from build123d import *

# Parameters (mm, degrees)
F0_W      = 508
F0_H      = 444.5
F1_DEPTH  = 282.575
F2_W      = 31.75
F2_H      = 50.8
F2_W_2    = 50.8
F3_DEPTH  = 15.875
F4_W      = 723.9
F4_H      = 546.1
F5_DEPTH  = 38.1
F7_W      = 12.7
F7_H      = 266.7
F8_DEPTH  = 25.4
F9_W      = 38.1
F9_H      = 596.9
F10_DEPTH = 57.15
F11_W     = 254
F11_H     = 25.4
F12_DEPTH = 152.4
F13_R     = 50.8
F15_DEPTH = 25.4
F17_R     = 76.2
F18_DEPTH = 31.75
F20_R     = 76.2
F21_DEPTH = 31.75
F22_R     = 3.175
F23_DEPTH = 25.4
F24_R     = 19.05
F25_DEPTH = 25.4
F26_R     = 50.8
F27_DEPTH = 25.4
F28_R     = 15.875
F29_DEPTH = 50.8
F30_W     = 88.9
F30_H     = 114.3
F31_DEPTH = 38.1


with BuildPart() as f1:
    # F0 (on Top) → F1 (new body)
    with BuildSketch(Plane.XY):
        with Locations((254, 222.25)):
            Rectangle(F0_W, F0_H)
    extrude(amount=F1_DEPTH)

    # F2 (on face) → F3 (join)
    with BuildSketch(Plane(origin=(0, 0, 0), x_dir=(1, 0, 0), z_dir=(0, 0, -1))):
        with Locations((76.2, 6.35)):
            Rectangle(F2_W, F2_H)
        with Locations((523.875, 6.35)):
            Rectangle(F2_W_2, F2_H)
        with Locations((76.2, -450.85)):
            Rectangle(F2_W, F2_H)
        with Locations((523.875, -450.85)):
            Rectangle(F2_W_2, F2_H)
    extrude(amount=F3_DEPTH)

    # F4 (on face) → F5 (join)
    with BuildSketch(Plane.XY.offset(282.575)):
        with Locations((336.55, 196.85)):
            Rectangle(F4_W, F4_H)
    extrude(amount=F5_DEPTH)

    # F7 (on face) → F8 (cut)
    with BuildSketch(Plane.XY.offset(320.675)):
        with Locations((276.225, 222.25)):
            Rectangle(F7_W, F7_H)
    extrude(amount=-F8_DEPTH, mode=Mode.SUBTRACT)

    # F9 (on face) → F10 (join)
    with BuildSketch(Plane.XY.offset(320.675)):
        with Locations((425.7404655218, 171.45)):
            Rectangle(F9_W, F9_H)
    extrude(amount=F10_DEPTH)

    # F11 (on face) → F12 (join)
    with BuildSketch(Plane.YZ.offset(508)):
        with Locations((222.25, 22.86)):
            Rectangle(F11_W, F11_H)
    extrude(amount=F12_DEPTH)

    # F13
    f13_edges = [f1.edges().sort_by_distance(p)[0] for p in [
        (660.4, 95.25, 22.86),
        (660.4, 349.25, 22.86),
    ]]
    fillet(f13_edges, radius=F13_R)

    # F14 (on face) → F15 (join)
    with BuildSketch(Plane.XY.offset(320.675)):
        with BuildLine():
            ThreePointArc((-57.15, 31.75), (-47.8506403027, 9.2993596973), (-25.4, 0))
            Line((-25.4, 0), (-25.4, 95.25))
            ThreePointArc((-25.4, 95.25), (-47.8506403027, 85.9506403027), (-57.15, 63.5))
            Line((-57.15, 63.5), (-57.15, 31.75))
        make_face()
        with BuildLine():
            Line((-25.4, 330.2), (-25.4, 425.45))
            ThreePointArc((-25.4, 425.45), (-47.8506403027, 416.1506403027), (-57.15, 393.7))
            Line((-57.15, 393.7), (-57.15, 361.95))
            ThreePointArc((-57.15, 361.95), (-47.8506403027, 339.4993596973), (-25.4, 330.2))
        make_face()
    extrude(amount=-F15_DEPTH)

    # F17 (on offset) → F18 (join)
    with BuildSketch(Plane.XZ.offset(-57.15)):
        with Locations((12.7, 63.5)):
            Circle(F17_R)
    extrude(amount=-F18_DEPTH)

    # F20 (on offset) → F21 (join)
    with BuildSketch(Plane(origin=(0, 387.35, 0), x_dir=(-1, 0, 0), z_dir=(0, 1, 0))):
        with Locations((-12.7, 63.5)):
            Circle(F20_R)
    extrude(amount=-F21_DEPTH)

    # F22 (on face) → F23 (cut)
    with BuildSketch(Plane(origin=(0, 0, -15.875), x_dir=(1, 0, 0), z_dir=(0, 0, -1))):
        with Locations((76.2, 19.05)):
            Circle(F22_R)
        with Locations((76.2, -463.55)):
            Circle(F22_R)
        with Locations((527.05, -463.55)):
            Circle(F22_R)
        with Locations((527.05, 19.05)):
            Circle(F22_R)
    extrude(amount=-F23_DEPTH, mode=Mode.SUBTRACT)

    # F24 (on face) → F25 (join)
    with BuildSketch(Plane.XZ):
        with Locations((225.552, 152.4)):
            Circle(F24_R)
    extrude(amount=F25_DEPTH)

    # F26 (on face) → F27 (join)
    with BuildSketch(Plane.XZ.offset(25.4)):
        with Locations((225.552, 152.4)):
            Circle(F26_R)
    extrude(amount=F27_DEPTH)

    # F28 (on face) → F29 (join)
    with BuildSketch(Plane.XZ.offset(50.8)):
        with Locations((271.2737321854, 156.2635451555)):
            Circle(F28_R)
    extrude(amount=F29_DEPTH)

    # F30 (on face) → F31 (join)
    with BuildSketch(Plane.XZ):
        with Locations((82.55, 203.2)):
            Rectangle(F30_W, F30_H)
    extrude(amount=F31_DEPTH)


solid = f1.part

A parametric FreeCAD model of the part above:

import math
import FreeCAD as App
import Part
import Sketcher
Q = App.Units.Quantity


def edges_at(feature, points):
    """Names of the edges that pass closest to the given points."""
    edges = feature.Shape.Edges
    near = lambda p: min(range(len(edges)), key=lambda i: edges[i].distToShape(Part.Vertex(*p))[0])
    return sorted({f"Edge{near(p) + 1}" for p in points})

doc = App.newDocument("Part")
body = doc.addObject("PartDesign::Body", "Body")

# Sketch on XY plane
sketch1 = body.newObject("Sketcher::SketchObject", "Sketch")
sketch1.AttachmentSupport = (doc.getObject("XY_Plane"), [""])
sketch1.MapMode = "FlatFace"
sketch1.addGeometry(Part.LineSegment(App.Vector(0, 444, 0), App.Vector(0, 0, 0)), False)
sketch1.addGeometry(Part.LineSegment(App.Vector(0, 0, 0), App.Vector(508, 0, 0)), False)
sketch1.addGeometry(Part.LineSegment(App.Vector(508, 0, 0), App.Vector(508, 444, 0)), False)
sketch1.addGeometry(Part.LineSegment(App.Vector(508, 444, 0), App.Vector(0, 444, 0)), False)
sketch1.addConstraint(Sketcher.Constraint("Coincident", 0, 2, 1, 1))
sketch1.addConstraint(Sketcher.Constraint("Coincident", 1, 2, 2, 1))
sketch1.addConstraint(Sketcher.Constraint("Coincident", 2, 2, 3, 1))
sketch1.addConstraint(Sketcher.Constraint("Coincident", 3, 2, 0, 1))
sketch1.addConstraint(Sketcher.Constraint("Vertical", 0))
sketch1.addConstraint(Sketcher.Constraint("Horizontal", 1))
sketch1.addConstraint(Sketcher.Constraint("Vertical", 2))
sketch1.addConstraint(Sketcher.Constraint("Horizontal", 3))
sketch1.addConstraint(Sketcher.Constraint("Coincident", 0, 2, -1, 1))
sketch1.addConstraint(Sketcher.Constraint("DistanceX", 1, 1, 1, 2, Q("20 in")))
sketch1.addConstraint(Sketcher.Constraint("DistanceY", 0, 2, 0, 1, Q("17.5 in")))
pad1 = body.newObject("PartDesign::Pad", "Pad")
pad1.Profile = sketch1
pad1.Length = Q("11.125 in")

# Sketch on XY plane
sketch2 = body.newObject("Sketcher::SketchObject", "Sketch001")
sketch2.AttachmentSupport = (doc.getObject("XY_Plane"), [""])
sketch2.MapMode = "FlatFace"
sketch2.addGeometry(Part.LineSegment(App.Vector(60, -32, 0), App.Vector(60, 19, 0)), False)
sketch2.addGeometry(Part.LineSegment(App.Vector(60, 19, 0), App.Vector(92, 19, 0)), False)
sketch2.addGeometry(Part.LineSegment(App.Vector(92, 19, 0), App.Vector(92, -32, 0)), False)
sketch2.addGeometry(Part.LineSegment(App.Vector(92, -32, 0), App.Vector(60, -32, 0)), False)
sketch2.addGeometry(Part.LineSegment(App.Vector(498, -32, 0), App.Vector(498, 19, 0)), False)
sketch2.addGeometry(Part.LineSegment(App.Vector(498, 19, 0), App.Vector(549, 19, 0)), False)
sketch2.addGeometry(Part.LineSegment(App.Vector(549, 19, 0), App.Vector(549, -32, 0)), False)
sketch2.addGeometry(Part.LineSegment(App.Vector(549, -32, 0), App.Vector(498, -32, 0)), False)
sketch2.addGeometry(Part.LineSegment(App.Vector(60, 425, 0), App.Vector(60, 476, 0)), False)
sketch2.addGeometry(Part.LineSegment(App.Vector(60, 476, 0), App.Vector(92, 476, 0)), False)
sketch2.addGeometry(Part.LineSegment(App.Vector(92, 476, 0), App.Vector(92, 425, 0)), False)
sketch2.addGeometry(Part.LineSegment(App.Vector(92, 425, 0), App.Vector(60, 425, 0)), False)
sketch2.addGeometry(Part.LineSegment(App.Vector(498, 425, 0), App.Vector(498, 476, 0)), False)
sketch2.addGeometry(Part.LineSegment(App.Vector(498, 476, 0), App.Vector(549, 476, 0)), False)
sketch2.addGeometry(Part.LineSegment(App.Vector(549, 476, 0), App.Vector(549, 425, 0)), False)
sketch2.addGeometry(Part.LineSegment(App.Vector(549, 425, 0), App.Vector(498, 425, 0)), False)
sketch2.addConstraint(Sketcher.Constraint("Coincident", 0, 2, 1, 1))
sketch2.addConstraint(Sketcher.Constraint("Coincident", 1, 2, 2, 1))
sketch2.addConstraint(Sketcher.Constraint("Coincident", 2, 2, 3, 1))
sketch2.addConstraint(Sketcher.Constraint("Coincident", 3, 2, 0, 1))
sketch2.addConstraint(Sketcher.Constraint("Coincident", 4, 2, 5, 1))
sketch2.addConstraint(Sketcher.Constraint("Coincident", 5, 2, 6, 1))
sketch2.addConstraint(Sketcher.Constraint("Coincident", 6, 2, 7, 1))
sketch2.addConstraint(Sketcher.Constraint("Coincident", 7, 2, 4, 1))
sketch2.addConstraint(Sketcher.Constraint("Coincident", 8, 2, 9, 1))
sketch2.addConstraint(Sketcher.Constraint("Coincident", 9, 2, 10, 1))
sketch2.addConstraint(Sketcher.Constraint("Coincident", 10, 2, 11, 1))
sketch2.addConstraint(Sketcher.Constraint("Coincident", 11, 2, 8, 1))
sketch2.addConstraint(Sketcher.Constraint("Coincident", 12, 2, 13, 1))
sketch2.addConstraint(Sketcher.Constraint("Coincident", 13, 2, 14, 1))
sketch2.addConstraint(Sketcher.Constraint("Coincident", 14, 2, 15, 1))
sketch2.addConstraint(Sketcher.Constraint("Coincident", 15, 2, 12, 1))
sketch2.addConstraint(Sketcher.Constraint("Vertical", 0))
sketch2.addConstraint(Sketcher.Constraint("Horizontal", 1))
sketch2.addConstraint(Sketcher.Constraint("Vertical", 2))
sketch2.addConstraint(Sketcher.Constraint("Horizontal", 3))
sketch2.addConstraint(Sketcher.Constraint("Vertical", 4))
sketch2.addConstraint(Sketcher.Constraint("Horizontal", 5))
sketch2.addConstraint(Sketcher.Constraint("Vertical", 6))
sketch2.addConstraint(Sketcher.Constraint("Horizontal", 7))
sketch2.addConstraint(Sketcher.Constraint("Vertical", 8))
sketch2.addConstraint(Sketcher.Constraint("Horizontal", 9))
sketch2.addConstraint(Sketcher.Constraint("Vertical", 10))
sketch2.addConstraint(Sketcher.Constraint("Horizontal", 11))
sketch2.addConstraint(Sketcher.Constraint("Vertical", 12))
sketch2.addConstraint(Sketcher.Constraint("Horizontal", 13))
sketch2.addConstraint(Sketcher.Constraint("Vertical", 14))
sketch2.addConstraint(Sketcher.Constraint("Horizontal", 15))
sketch2.addConstraint(Sketcher.Constraint("Horizontal", 1, 2, 4, 2))
sketch2.addConstraint(Sketcher.Constraint("Horizontal", 3, 2, 6, 2))
sketch2.addConstraint(Sketcher.Constraint("Horizontal", 9, 2, 12, 2))
sketch2.addConstraint(Sketcher.Constraint("Horizontal", 11, 2, 14, 2))
sketch2.addConstraint(Sketcher.Constraint("Vertical", 3, 2, 8, 2))
sketch2.addConstraint(Sketcher.Constraint("Vertical", 2, 2, 9, 2))
sketch2.addConstraint(Sketcher.Constraint("Vertical", 7, 2, 12, 2))
sketch2.addConstraint(Sketcher.Constraint("Vertical", 6, 2, 13, 2))
sketch2.addConstraint(Sketcher.Constraint("Equal", 15, 0))
sketch2.addConstraint(Sketcher.Constraint("Equal", 6, 8))
sketch2.addConstraint(Sketcher.Constraint("DistanceX", 5, 1, 5, 2, Q("2 in")))
sketch2.addConstraint(Sketcher.Constraint("DistanceX", 1, 2, 4, 2, Q("16 in")))
sketch2.addConstraint(Sketcher.Constraint("DistanceY", 0, 2, 8, 2, Q("18 in")))
sketch2.addConstraint(Sketcher.Constraint("DistanceX", 1, 1, 1, 2, Q("1.25 in")))
sketch2.addConstraint(Sketcher.Constraint("DistanceY", -1, 1, 0, 2, Q("0.75 in")))
sketch2.addConstraint(Sketcher.Constraint("DistanceX", -1, 1, 0, 2, Q("2.375 in")))
pad2 = body.newObject("PartDesign::Pad", "Pad001")
pad2.Profile = sketch2
pad2.Length = Q("0.625 in")
pad2.Reversed = True

# Sketch on XY plane
sketch3 = body.newObject("Sketcher::SketchObject", "Sketch002")
sketch3.AttachmentSupport = (doc.getObject("XY_Plane"), [""])
sketch3.MapMode = "FlatFace"
sketch3.AttachmentOffset = App.Placement(App.Vector(0, 0, 11.125 * 25.4), App.Rotation())
sketch3.addGeometry(Part.LineSegment(App.Vector(-25, 470, 0), App.Vector(-25, -76, 0)), False)
sketch3.addGeometry(Part.LineSegment(App.Vector(-25, -76, 0), App.Vector(698, -76, 0)), False)
sketch3.addGeometry(Part.LineSegment(App.Vector(698, -76, 0), App.Vector(698, 470, 0)), False)
sketch3.addGeometry(Part.LineSegment(App.Vector(698, 470, 0), App.Vector(-25, 470, 0)), False)
sketch3.addConstraint(Sketcher.Constraint("Coincident", 0, 2, 1, 1))
sketch3.addConstraint(Sketcher.Constraint("Coincident", 1, 2, 2, 1))
sketch3.addConstraint(Sketcher.Constraint("Coincident", 2, 2, 3, 1))
sketch3.addConstraint(Sketcher.Constraint("Coincident", 3, 2, 0, 1))
sketch3.addConstraint(Sketcher.Constraint("Vertical", 0))
sketch3.addConstraint(Sketcher.Constraint("Horizontal", 1))
sketch3.addConstraint(Sketcher.Constraint("Vertical", 2))
sketch3.addConstraint(Sketcher.Constraint("Horizontal", 3))
sketch3.addConstraint(Sketcher.Constraint("DistanceX", 1, 1, 1, 2, Q("28.5 in")))
sketch3.addConstraint(Sketcher.Constraint("DistanceY", 0, 2, 0, 1, Q("21.5 in")))
sketch3.addConstraint(Sketcher.Constraint("DistanceX", 0, 2, -1, 1, Q("1 in")))
sketch3.addConstraint(Sketcher.Constraint("DistanceY", 0, 2, -1, 1, Q("3 in")))
pad3 = body.newObject("PartDesign::Pad", "Pad002")
pad3.Profile = sketch3
pad3.Length = Q("1.5 in")

# Sketch on XY plane
sketch4 = body.newObject("Sketcher::SketchObject", "Sketch003")
sketch4.AttachmentSupport = (doc.getObject("XY_Plane"), [""])
sketch4.MapMode = "FlatFace"
sketch4.AttachmentOffset = App.Placement(App.Vector(0, 0, 12.625 * 25.4), App.Rotation())
sketch4.addGeometry(Part.LineSegment(App.Vector(270, 356, 0), App.Vector(270, 89, 0)), False)
sketch4.addGeometry(Part.LineSegment(App.Vector(270, 89, 0), App.Vector(283, 89, 0)), False)
sketch4.addGeometry(Part.LineSegment(App.Vector(283, 89, 0), App.Vector(283, 356, 0)), False)
sketch4.addGeometry(Part.LineSegment(App.Vector(283, 356, 0), App.Vector(270, 356, 0)), False)
sketch4.addConstraint(Sketcher.Constraint("Coincident", 0, 2, 1, 1))
sketch4.addConstraint(Sketcher.Constraint("Coincident", 1, 2, 2, 1))
sketch4.addConstraint(Sketcher.Constraint("Coincident", 2, 2, 3, 1))
sketch4.addConstraint(Sketcher.Constraint("Coincident", 3, 2, 0, 1))
sketch4.addConstraint(Sketcher.Constraint("Vertical", 0))
sketch4.addConstraint(Sketcher.Constraint("Horizontal", 1))
sketch4.addConstraint(Sketcher.Constraint("Vertical", 2))
sketch4.addConstraint(Sketcher.Constraint("Horizontal", 3))
sketch4.addConstraint(Sketcher.Constraint("DistanceX", 1, 1, 1, 2, Q("0.5 in")))
sketch4.addConstraint(Sketcher.Constraint("DistanceY", 0, 2, 0, 1, Q("10.5 in")))
sketch4.addConstraint(Sketcher.Constraint("DistanceY", -1, 1, 2, 2, Q("14 in")))
sketch4.addConstraint(Sketcher.Constraint("DistanceX", -1, 1, 0, 2, Q("10.625 in")))
pocket1 = body.newObject("PartDesign::Pocket", "Pocket")
pocket1.Profile = sketch4
pocket1.Length = Q("1 in")

# Sketch on XY plane
sketch5 = body.newObject("Sketcher::SketchObject", "Sketch004")
sketch5.AttachmentSupport = (doc.getObject("XY_Plane"), [""])
sketch5.MapMode = "FlatFace"
sketch5.AttachmentOffset = App.Placement(App.Vector(0, 0, 12.625 * 25.4), App.Rotation())
sketch5.addGeometry(Part.LineSegment(App.Vector(407, 470, 0), App.Vector(407, -127, 0)), False)
sketch5.addGeometry(Part.LineSegment(App.Vector(407, -127, 0), App.Vector(445, -127, 0)), False)
sketch5.addGeometry(Part.LineSegment(App.Vector(445, -127, 0), App.Vector(445, 470, 0)), False)
sketch5.addGeometry(Part.LineSegment(App.Vector(445, 470, 0), App.Vector(407, 470, 0)), False)
sketch5.addConstraint(Sketcher.Constraint("Coincident", 0, 2, 1, 1))
sketch5.addConstraint(Sketcher.Constraint("Coincident", 1, 2, 2, 1))
sketch5.addConstraint(Sketcher.Constraint("Coincident", 2, 2, 3, 1))
sketch5.addConstraint(Sketcher.Constraint("Coincident", 3, 2, 0, 1))
sketch5.addConstraint(Sketcher.Constraint("Vertical", 0))
sketch5.addConstraint(Sketcher.Constraint("Horizontal", 1))
sketch5.addConstraint(Sketcher.Constraint("Vertical", 2))
sketch5.addConstraint(Sketcher.Constraint("Horizontal", 3))
sketch5.addConstraint(Sketcher.Constraint("DistanceX", 1, 1, 1, 2, Q("1.5 in")))
sketch5.addConstraint(Sketcher.Constraint("DistanceY", 0, 2, 0, 1, Q("23.5 in")))
sketch5.addConstraint(Sketcher.Constraint("DistanceY", 0, 2, -1, 1, Q("5 in")))
sketch5.addConstraint(Sketcher.Constraint("DistanceX", -1, 1, 0, 2, Q("406.690466 mm")))
pad4 = body.newObject("PartDesign::Pad", "Pad003")
pad4.Profile = sketch5
pad4.Length = Q("2.25 in")

# Sketch on YZ plane
sketch6 = body.newObject("Sketcher::SketchObject", "Sketch005")
sketch6.AttachmentSupport = (doc.getObject("YZ_Plane"), [""])
sketch6.MapMode = "FlatFace"
sketch6.AttachmentOffset = App.Placement(App.Vector(0, 0, 20 * 25.4), App.Rotation())
sketch6.addGeometry(Part.LineSegment(App.Vector(95, 36, 0), App.Vector(95, 10, 0)), False)
sketch6.addGeometry(Part.LineSegment(App.Vector(95, 10, 0), App.Vector(349, 10, 0)), False)
sketch6.addGeometry(Part.LineSegment(App.Vector(349, 10, 0), App.Vector(349, 36, 0)), False)
sketch6.addGeometry(Part.LineSegment(App.Vector(349, 36, 0), App.Vector(95, 36, 0)), False)
sketch6.addConstraint(Sketcher.Constraint("Coincident", 0, 2, 1, 1))
sketch6.addConstraint(Sketcher.Constraint("Coincident", 1, 2, 2, 1))
sketch6.addConstraint(Sketcher.Constraint("Coincident", 2, 2, 3, 1))
sketch6.addConstraint(Sketcher.Constraint("Coincident", 3, 2, 0, 1))
sketch6.addConstraint(Sketcher.Constraint("Vertical", 0))
sketch6.addConstraint(Sketcher.Constraint("Horizontal", 1))
sketch6.addConstraint(Sketcher.Constraint("Vertical", 2))
sketch6.addConstraint(Sketcher.Constraint("Horizontal", 3))
sketch6.addConstraint(Sketcher.Constraint("DistanceX", 1, 1, 1, 2, Q("10 in")))
sketch6.addConstraint(Sketcher.Constraint("DistanceY", 0, 2, 0, 1, Q("1 in")))
sketch6.addConstraint(Sketcher.Constraint("DistanceY", -1, 1, 0, 2, Q("0.4 in")))
sketch6.addConstraint(Sketcher.Constraint("DistanceX", -1, 1, 0, 2, Q("3.75 in")))
pad5 = body.newObject("PartDesign::Pad", "Pad004")
pad5.Profile = sketch6
pad5.Length = Q("6 in")
doc.recompute()

fillet = body.newObject("PartDesign::Fillet", "Fillet")
fillet.Base = (pad5, edges_at(pad5, [(660.4, 95.25, 22.86), (660.4, 349.25, 22.86)]))
fillet.Radius = Q("2 in")

# Sketch on XY plane
sketch7 = body.newObject("Sketcher::SketchObject", "Sketch006")
sketch7.AttachmentSupport = (doc.getObject("XY_Plane"), [""])
sketch7.MapMode = "FlatFace"
sketch7.AttachmentOffset = App.Placement(App.Vector(0, 0, 12.625 * 25.4), App.Rotation())
sketch7.addGeometry(Part.ArcOfCircle(Part.Circle(App.Vector(-25, 32, 0), App.Vector(0, 0, 1), 32), math.radians(180), math.radians(270)), False)
sketch7.addGeometry(Part.LineSegment(App.Vector(-25, 0, 0), App.Vector(-25, 95, 0)), False)
sketch7.addGeometry(Part.ArcOfCircle(Part.Circle(App.Vector(-25, 64, 0), App.Vector(0, 0, 1), 32), math.radians(90), math.radians(180)), False)
sketch7.addGeometry(Part.LineSegment(App.Vector(-57, 64, 0), App.Vector(-57, 32, 0)), False)
sketch7.addGeometry(Part.LineSegment(App.Vector(-25, 330, 0), App.Vector(-25, 425, 0)), False)
sketch7.addGeometry(Part.ArcOfCircle(Part.Circle(App.Vector(-25, 394, 0), App.Vector(0, 0, 1), 32), math.radians(90), math.radians(180)), False)
sketch7.addGeometry(Part.LineSegment(App.Vector(-57, 394, 0), App.Vector(-57, 362, 0)), False)
sketch7.addGeometry(Part.ArcOfCircle(Part.Circle(App.Vector(-25, 362, 0), App.Vector(0, 0, 1), 32), math.radians(180), math.radians(270)), False)
sketch7.addConstraint(Sketcher.Constraint("Coincident", 0, 2, 1, 1))
sketch7.addConstraint(Sketcher.Constraint("Coincident", 1, 2, 2, 1))
sketch7.addConstraint(Sketcher.Constraint("Tangent", 2, 2, 3, 1))
sketch7.addConstraint(Sketcher.Constraint("Tangent", 3, 2, 0, 1))
sketch7.addConstraint(Sketcher.Constraint("Coincident", 4, 2, 5, 1))
sketch7.addConstraint(Sketcher.Constraint("Tangent", 5, 2, 6, 1))
sketch7.addConstraint(Sketcher.Constraint("Tangent", 6, 2, 7, 1))
sketch7.addConstraint(Sketcher.Constraint("Coincident", 7, 2, 4, 1))
sketch7.addConstraint(Sketcher.Constraint("Vertical", 1))
sketch7.addConstraint(Sketcher.Constraint("Vertical", 3))
sketch7.addConstraint(Sketcher.Constraint("Vertical", 4))
sketch7.addConstraint(Sketcher.Constraint("Vertical", 6))
sketch7.addConstraint(Sketcher.Constraint("Equal", 0, 2))
sketch7.addConstraint(Sketcher.Constraint("Equal", 2, 5))
sketch7.addConstraint(Sketcher.Constraint("Equal", 5, 7))
sketch7.addConstraint(Sketcher.Constraint("PointOnObject", 0, 2, -1))
sketch7.addConstraint(Sketcher.Constraint("Vertical", 2, 3, 5, 3))
sketch7.addConstraint(Sketcher.Constraint("Vertical", 7, 3, 0, 2))
sketch7.addConstraint(Sketcher.Constraint("Vertical", 1, 2, 4, 2))
sketch7.addConstraint(Sketcher.Constraint("Equal", 1, 4))
sketch7.addConstraint(Sketcher.Constraint("Radius", 0, Q("1.25 in")))
sketch7.addConstraint(Sketcher.Constraint("DistanceX", 0, 3, -1, 1, Q("1 in")))
sketch7.addConstraint(Sketcher.Constraint("DistanceY", -1, 1, 7, 2, Q("13 in")))
sketch7.addConstraint(Sketcher.Constraint("DistanceY", 1, 1, 1, 2, Q("3.75 in")))
pad6 = body.newObject("PartDesign::Pad", "Pad005")
pad6.Profile = sketch7
pad6.Length = Q("1 in")
pad6.Reversed = True

# Sketch on XZ plane
sketch8 = body.newObject("Sketcher::SketchObject", "Sketch007")
sketch8.AttachmentSupport = (doc.getObject("XZ_Plane"), [""])
sketch8.MapMode = "FlatFace"
sketch8.AttachmentOffset = App.Placement(App.Vector(0, 0, -2.25 * 25.4), App.Rotation())
sketch8.addGeometry(Part.Circle(App.Vector(13, 64, 0), App.Vector(0, 0, 1), 76), False)
sketch8.addConstraint(Sketcher.Constraint("Diameter", 0, Q("6 in")))
sketch8.addConstraint(Sketcher.Constraint("DistanceX", -1, 1, 0, 3, Q("0.5 in")))
sketch8.addConstraint(Sketcher.Constraint("DistanceY", -1, 1, 0, 3, Q("2.5 in")))
pad7 = body.newObject("PartDesign::Pad", "Pad006")
pad7.Profile = sketch8
pad7.Length = Q("1.25 in")
pad7.Reversed = True

# Sketch on XZ plane
sketch9 = body.newObject("Sketcher::SketchObject", "Sketch008")
sketch9.AttachmentSupport = (doc.getObject("XZ_Plane"), [""])
sketch9.MapMode = "FlatFace"
sketch9.AttachmentOffset = App.Placement(App.Vector(0, 0, -15.25 * 25.4), App.Rotation())
sketch9.addGeometry(Part.Circle(App.Vector(13, 64, 0), App.Vector(0, 0, 1), 76), False)
sketch9.addConstraint(Sketcher.Constraint("Diameter", 0, Q("6 in")))
sketch9.addConstraint(Sketcher.Constraint("DistanceX", -1, 1, 0, 3, Q("0.5 in")))
sketch9.addConstraint(Sketcher.Constraint("DistanceY", -1, 1, 0, 3, Q("2.5 in")))
pad8 = body.newObject("PartDesign::Pad", "Pad007")
pad8.Profile = sketch9
pad8.Length = Q("1.25 in")

# Sketch on XY plane
sketch10 = body.newObject("Sketcher::SketchObject", "Sketch009")
sketch10.AttachmentSupport = (doc.getObject("XY_Plane"), [""])
sketch10.MapMode = "FlatFace"
sketch10.AttachmentOffset = App.Placement(App.Vector(0, 0, -0.625 * 25.4), App.Rotation())
sketch10.addGeometry(Part.Circle(App.Vector(76.2, -19.1, 0), App.Vector(0, 0, 1), 3.2), False)
sketch10.addGeometry(Part.Circle(App.Vector(76.2, 463.6, 0), App.Vector(0, 0, 1), 3.2), False)
sketch10.addGeometry(Part.Circle(App.Vector(527, 463.6, 0), App.Vector(0, 0, 1), 3.2), False)
sketch10.addGeometry(Part.Circle(App.Vector(527, -19.1, 0), App.Vector(0, 0, 1), 3.2), False)
sketch10.addConstraint(Sketcher.Constraint("Equal", 0, 1))
sketch10.addConstraint(Sketcher.Constraint("Equal", 1, 2))
sketch10.addConstraint(Sketcher.Constraint("Equal", 2, 3))
sketch10.addConstraint(Sketcher.Constraint("Horizontal", 1, 3, 2, 3))
sketch10.addConstraint(Sketcher.Constraint("Horizontal", 0, 3, 3, 3))
sketch10.addConstraint(Sketcher.Constraint("Vertical", 0, 3, 1, 3))
sketch10.addConstraint(Sketcher.Constraint("Vertical", 2, 3, 3, 3))
sketch10.addConstraint(Sketcher.Constraint("Diameter", 0, Q("0.25 in")))
sketch10.addConstraint(Sketcher.Constraint("DistanceX", -1, 1, 0, 3, Q("3 in")))
sketch10.addConstraint(Sketcher.Constraint("DistanceY", 0, 3, 1, 3, Q("19 in")))
sketch10.addConstraint(Sketcher.Constraint("DistanceY", 0, 3, -1, 1, Q("0.75 in")))
sketch10.addConstraint(Sketcher.Constraint("DistanceX", -1, 1, 2, 3, Q("20.75 in")))
pocket2 = body.newObject("PartDesign::Pocket", "Pocket001")
pocket2.Profile = sketch10
pocket2.Length = Q("1 in")
pocket2.Reversed = True

# Sketch on XZ plane
sketch11 = body.newObject("Sketcher::SketchObject", "Sketch010")
sketch11.AttachmentSupport = (doc.getObject("XZ_Plane"), [""])
sketch11.MapMode = "FlatFace"
sketch11.addGeometry(Part.Circle(App.Vector(226, 152, 0), App.Vector(0, 0, 1), 19), False)
sketch11.addConstraint(Sketcher.Constraint("Diameter", 0, Q("1.5 in")))
sketch11.addConstraint(Sketcher.Constraint("DistanceY", -1, 1, 0, 3, Q("6 in")))
sketch11.addConstraint(Sketcher.Constraint("DistanceX", -1, 1, 0, 3, Q("8.88 in")))
pad9 = body.newObject("PartDesign::Pad", "Pad008")
pad9.Profile = sketch11
pad9.Length = Q("1 in")

# Sketch on XZ plane
sketch12 = body.newObject("Sketcher::SketchObject", "Sketch011")
sketch12.AttachmentSupport = (doc.getObject("XZ_Plane"), [""])
sketch12.MapMode = "FlatFace"
sketch12.AttachmentOffset = App.Placement(App.Vector(0, 0, 1 * 25.4), App.Rotation())
sketch12.addGeometry(Part.Circle(App.Vector(226, 152, 0), App.Vector(0, 0, 1), 51), False)
sketch12.addConstraint(Sketcher.Constraint("Diameter", 0, Q("4 in")))
sketch12.addConstraint(Sketcher.Constraint("DistanceY", -1, 1, 0, 3, Q("6 in")))
sketch12.addConstraint(Sketcher.Constraint("DistanceX", -1, 1, 0, 3, Q("8.88 in")))
pad10 = body.newObject("PartDesign::Pad", "Pad009")
pad10.Profile = sketch12
pad10.Length = Q("1 in")

# Sketch on XZ plane
sketch13 = body.newObject("Sketcher::SketchObject", "Sketch012")
sketch13.AttachmentSupport = (doc.getObject("XZ_Plane"), [""])
sketch13.MapMode = "FlatFace"
sketch13.AttachmentOffset = App.Placement(App.Vector(0, 0, 2 * 25.4), App.Rotation())
sketch13.addGeometry(Part.Circle(App.Vector(271, 156, 0), App.Vector(0, 0, 1), 16), False)
sketch13.addConstraint(Sketcher.Constraint("Diameter", 0, Q("1.25 in")))
sketch13.addConstraint(Sketcher.Constraint("DistanceX", -1, 1, 0, 3, Q("271.273732 mm")))
sketch13.addConstraint(Sketcher.Constraint("DistanceY", -1, 1, 0, 3, Q("156.263545 mm")))
pad11 = body.newObject("PartDesign::Pad", "Pad010")
pad11.Profile = sketch13
pad11.Length = Q("2 in")

# Sketch on XZ plane
sketch14 = body.newObject("Sketcher::SketchObject", "Sketch013")
sketch14.AttachmentSupport = (doc.getObject("XZ_Plane"), [""])
sketch14.MapMode = "FlatFace"
sketch14.addGeometry(Part.LineSegment(App.Vector(38, 260, 0), App.Vector(38, 146, 0)), False)
sketch14.addGeometry(Part.LineSegment(App.Vector(38, 146, 0), App.Vector(127, 146, 0)), False)
sketch14.addGeometry(Part.LineSegment(App.Vector(127, 146, 0), App.Vector(127, 260, 0)), False)
sketch14.addGeometry(Part.LineSegment(App.Vector(127, 260, 0), App.Vector(38, 260, 0)), False)
sketch14.addConstraint(Sketcher.Constraint("Coincident", 0, 2, 1, 1))
sketch14.addConstraint(Sketcher.Constraint("Coincident", 1, 2, 2, 1))
sketch14.addConstraint(Sketcher.Constraint("Coincident", 2, 2, 3, 1))
sketch14.addConstraint(Sketcher.Constraint("Coincident", 3, 2, 0, 1))
sketch14.addConstraint(Sketcher.Constraint("Vertical", 0))
sketch14.addConstraint(Sketcher.Constraint("Horizontal", 1))
sketch14.addConstraint(Sketcher.Constraint("Vertical", 2))
sketch14.addConstraint(Sketcher.Constraint("Horizontal", 3))
sketch14.addConstraint(Sketcher.Constraint("DistanceX", 1, 1, 1, 2, Q("3.5 in")))
sketch14.addConstraint(Sketcher.Constraint("DistanceY", 0, 2, 0, 1, Q("4.5 in")))
sketch14.addConstraint(Sketcher.Constraint("DistanceX", -1, 1, 1, 2, Q("5 in")))
sketch14.addConstraint(Sketcher.Constraint("DistanceY", -1, 1, 0, 2, Q("5.75 in")))
pad12 = body.newObject("PartDesign::Pad", "Pad011")
pad12.Profile = sketch14
pad12.Length = Q("1.5 in")

doc.recompute()
